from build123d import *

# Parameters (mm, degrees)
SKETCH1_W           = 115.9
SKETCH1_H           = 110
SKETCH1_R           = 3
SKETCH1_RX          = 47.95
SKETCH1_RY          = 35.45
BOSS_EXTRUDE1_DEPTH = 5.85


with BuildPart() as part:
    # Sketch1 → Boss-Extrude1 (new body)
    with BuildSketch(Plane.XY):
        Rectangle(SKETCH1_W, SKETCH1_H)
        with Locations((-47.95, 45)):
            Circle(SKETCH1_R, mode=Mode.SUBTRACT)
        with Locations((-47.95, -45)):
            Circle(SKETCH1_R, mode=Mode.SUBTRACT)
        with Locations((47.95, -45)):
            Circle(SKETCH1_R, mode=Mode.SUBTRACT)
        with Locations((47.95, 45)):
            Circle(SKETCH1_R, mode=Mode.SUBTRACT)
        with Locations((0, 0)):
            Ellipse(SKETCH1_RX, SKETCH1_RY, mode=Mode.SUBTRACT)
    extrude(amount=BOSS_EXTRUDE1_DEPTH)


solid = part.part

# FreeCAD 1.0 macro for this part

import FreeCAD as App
import Part
import Sketcher

V = App.Vector


def add_polygon(sketch, points):
    """Adds a closed chain of lines whose ends are joined by coincident constraints."""
    first, n = sketch.GeometryCount, len(points)
    for a, b in zip(points, points[1:] + points[:1]):
        sketch.addGeometry(Part.LineSegment(App.Vector(*a, 0), App.Vector(*b, 0)), False)
    for i in range(n):
        sketch.addConstraint(Sketcher.Constraint("Coincident", first + i, 2, first + (i + 1) % n, 1))

doc = App.newDocument("Part")
body = doc.addObject("PartDesign::Body", "Body")

sketch1 = doc.addObject("Sketcher::SketchObject", "Sketch")
body.addObject(sketch1)
sketch1.AttachmentSupport = (doc.XY_Plane, [""])
sketch1.MapMode = "FlatFace"
add_polygon(sketch1, [(-57.95, 55), (-57.95, -55), (57.95, -55), (57.95, 55)])
sketch1.addGeometry(Part.Circle(V(-47.95, -45, 0), V(0, 0, 1), 3), False)
sketch1.addGeometry(Part.Circle(V(47.95, -45, 0), V(0, 0, 1), 3), False)
sketch1.addGeometry(Part.Ellipse(V(47.95, 0, 0), V(0, 35.45, 0), V(0, 0, 0)), False)
sketch1.addGeometry(Part.Circle(V(-47.95, 45, 0), V(0, 0, 1), 3), False)
sketch1.addGeometry(Part.Circle(V(47.95, 45, 0), V(0, 0, 1), 3), False)
sketch1.addConstraint([
    Sketcher.Constraint("Block", 6),
    Sketcher.Constraint("Vertical", 0),
    Sketcher.Constraint("Horizontal", 1),
    Sketcher.Constraint("Vertical", 2),
    Sketcher.Constraint("Horizontal", 3),
    Sketcher.Constraint("Equal", 4, 5),
    Sketcher.Constraint("Equal", 5, 7),
    Sketcher.Constraint("Equal", 7, 8),
    Sketcher.Constraint("Symmetric", 5, 3, 7, 3, -1, 1),
    Sketcher.Constraint("Symmetric", 4, 3, 8, 3, -1, 1),
    Sketcher.Constraint("Symmetric", 0, 2, 2, 2, -1, 1),
    Sketcher.Constraint("Symmetric", 4, 3, 5, 3, -2),
    Sketcher.Constraint("Diameter", 4, 6.0),
    Sketcher.Constraint("DistanceY", 0, 2, 0, 1, 110.0),
    Sketcher.Constraint("DistanceX", 1, 1, 1, 2, 115.9),
    Sketcher.Constraint("DistanceY", 4, 3, -1, 1, 45.0),
    Sketcher.Constraint("DistanceX", 0, 2, 4, 3, 10.0),
])
pad1 = doc.addObject("PartDesign::Pad", "Pad")
body.addObject(pad1)
pad1.Profile = sketch1
pad1.Length = 5.85

doc.recompute()
